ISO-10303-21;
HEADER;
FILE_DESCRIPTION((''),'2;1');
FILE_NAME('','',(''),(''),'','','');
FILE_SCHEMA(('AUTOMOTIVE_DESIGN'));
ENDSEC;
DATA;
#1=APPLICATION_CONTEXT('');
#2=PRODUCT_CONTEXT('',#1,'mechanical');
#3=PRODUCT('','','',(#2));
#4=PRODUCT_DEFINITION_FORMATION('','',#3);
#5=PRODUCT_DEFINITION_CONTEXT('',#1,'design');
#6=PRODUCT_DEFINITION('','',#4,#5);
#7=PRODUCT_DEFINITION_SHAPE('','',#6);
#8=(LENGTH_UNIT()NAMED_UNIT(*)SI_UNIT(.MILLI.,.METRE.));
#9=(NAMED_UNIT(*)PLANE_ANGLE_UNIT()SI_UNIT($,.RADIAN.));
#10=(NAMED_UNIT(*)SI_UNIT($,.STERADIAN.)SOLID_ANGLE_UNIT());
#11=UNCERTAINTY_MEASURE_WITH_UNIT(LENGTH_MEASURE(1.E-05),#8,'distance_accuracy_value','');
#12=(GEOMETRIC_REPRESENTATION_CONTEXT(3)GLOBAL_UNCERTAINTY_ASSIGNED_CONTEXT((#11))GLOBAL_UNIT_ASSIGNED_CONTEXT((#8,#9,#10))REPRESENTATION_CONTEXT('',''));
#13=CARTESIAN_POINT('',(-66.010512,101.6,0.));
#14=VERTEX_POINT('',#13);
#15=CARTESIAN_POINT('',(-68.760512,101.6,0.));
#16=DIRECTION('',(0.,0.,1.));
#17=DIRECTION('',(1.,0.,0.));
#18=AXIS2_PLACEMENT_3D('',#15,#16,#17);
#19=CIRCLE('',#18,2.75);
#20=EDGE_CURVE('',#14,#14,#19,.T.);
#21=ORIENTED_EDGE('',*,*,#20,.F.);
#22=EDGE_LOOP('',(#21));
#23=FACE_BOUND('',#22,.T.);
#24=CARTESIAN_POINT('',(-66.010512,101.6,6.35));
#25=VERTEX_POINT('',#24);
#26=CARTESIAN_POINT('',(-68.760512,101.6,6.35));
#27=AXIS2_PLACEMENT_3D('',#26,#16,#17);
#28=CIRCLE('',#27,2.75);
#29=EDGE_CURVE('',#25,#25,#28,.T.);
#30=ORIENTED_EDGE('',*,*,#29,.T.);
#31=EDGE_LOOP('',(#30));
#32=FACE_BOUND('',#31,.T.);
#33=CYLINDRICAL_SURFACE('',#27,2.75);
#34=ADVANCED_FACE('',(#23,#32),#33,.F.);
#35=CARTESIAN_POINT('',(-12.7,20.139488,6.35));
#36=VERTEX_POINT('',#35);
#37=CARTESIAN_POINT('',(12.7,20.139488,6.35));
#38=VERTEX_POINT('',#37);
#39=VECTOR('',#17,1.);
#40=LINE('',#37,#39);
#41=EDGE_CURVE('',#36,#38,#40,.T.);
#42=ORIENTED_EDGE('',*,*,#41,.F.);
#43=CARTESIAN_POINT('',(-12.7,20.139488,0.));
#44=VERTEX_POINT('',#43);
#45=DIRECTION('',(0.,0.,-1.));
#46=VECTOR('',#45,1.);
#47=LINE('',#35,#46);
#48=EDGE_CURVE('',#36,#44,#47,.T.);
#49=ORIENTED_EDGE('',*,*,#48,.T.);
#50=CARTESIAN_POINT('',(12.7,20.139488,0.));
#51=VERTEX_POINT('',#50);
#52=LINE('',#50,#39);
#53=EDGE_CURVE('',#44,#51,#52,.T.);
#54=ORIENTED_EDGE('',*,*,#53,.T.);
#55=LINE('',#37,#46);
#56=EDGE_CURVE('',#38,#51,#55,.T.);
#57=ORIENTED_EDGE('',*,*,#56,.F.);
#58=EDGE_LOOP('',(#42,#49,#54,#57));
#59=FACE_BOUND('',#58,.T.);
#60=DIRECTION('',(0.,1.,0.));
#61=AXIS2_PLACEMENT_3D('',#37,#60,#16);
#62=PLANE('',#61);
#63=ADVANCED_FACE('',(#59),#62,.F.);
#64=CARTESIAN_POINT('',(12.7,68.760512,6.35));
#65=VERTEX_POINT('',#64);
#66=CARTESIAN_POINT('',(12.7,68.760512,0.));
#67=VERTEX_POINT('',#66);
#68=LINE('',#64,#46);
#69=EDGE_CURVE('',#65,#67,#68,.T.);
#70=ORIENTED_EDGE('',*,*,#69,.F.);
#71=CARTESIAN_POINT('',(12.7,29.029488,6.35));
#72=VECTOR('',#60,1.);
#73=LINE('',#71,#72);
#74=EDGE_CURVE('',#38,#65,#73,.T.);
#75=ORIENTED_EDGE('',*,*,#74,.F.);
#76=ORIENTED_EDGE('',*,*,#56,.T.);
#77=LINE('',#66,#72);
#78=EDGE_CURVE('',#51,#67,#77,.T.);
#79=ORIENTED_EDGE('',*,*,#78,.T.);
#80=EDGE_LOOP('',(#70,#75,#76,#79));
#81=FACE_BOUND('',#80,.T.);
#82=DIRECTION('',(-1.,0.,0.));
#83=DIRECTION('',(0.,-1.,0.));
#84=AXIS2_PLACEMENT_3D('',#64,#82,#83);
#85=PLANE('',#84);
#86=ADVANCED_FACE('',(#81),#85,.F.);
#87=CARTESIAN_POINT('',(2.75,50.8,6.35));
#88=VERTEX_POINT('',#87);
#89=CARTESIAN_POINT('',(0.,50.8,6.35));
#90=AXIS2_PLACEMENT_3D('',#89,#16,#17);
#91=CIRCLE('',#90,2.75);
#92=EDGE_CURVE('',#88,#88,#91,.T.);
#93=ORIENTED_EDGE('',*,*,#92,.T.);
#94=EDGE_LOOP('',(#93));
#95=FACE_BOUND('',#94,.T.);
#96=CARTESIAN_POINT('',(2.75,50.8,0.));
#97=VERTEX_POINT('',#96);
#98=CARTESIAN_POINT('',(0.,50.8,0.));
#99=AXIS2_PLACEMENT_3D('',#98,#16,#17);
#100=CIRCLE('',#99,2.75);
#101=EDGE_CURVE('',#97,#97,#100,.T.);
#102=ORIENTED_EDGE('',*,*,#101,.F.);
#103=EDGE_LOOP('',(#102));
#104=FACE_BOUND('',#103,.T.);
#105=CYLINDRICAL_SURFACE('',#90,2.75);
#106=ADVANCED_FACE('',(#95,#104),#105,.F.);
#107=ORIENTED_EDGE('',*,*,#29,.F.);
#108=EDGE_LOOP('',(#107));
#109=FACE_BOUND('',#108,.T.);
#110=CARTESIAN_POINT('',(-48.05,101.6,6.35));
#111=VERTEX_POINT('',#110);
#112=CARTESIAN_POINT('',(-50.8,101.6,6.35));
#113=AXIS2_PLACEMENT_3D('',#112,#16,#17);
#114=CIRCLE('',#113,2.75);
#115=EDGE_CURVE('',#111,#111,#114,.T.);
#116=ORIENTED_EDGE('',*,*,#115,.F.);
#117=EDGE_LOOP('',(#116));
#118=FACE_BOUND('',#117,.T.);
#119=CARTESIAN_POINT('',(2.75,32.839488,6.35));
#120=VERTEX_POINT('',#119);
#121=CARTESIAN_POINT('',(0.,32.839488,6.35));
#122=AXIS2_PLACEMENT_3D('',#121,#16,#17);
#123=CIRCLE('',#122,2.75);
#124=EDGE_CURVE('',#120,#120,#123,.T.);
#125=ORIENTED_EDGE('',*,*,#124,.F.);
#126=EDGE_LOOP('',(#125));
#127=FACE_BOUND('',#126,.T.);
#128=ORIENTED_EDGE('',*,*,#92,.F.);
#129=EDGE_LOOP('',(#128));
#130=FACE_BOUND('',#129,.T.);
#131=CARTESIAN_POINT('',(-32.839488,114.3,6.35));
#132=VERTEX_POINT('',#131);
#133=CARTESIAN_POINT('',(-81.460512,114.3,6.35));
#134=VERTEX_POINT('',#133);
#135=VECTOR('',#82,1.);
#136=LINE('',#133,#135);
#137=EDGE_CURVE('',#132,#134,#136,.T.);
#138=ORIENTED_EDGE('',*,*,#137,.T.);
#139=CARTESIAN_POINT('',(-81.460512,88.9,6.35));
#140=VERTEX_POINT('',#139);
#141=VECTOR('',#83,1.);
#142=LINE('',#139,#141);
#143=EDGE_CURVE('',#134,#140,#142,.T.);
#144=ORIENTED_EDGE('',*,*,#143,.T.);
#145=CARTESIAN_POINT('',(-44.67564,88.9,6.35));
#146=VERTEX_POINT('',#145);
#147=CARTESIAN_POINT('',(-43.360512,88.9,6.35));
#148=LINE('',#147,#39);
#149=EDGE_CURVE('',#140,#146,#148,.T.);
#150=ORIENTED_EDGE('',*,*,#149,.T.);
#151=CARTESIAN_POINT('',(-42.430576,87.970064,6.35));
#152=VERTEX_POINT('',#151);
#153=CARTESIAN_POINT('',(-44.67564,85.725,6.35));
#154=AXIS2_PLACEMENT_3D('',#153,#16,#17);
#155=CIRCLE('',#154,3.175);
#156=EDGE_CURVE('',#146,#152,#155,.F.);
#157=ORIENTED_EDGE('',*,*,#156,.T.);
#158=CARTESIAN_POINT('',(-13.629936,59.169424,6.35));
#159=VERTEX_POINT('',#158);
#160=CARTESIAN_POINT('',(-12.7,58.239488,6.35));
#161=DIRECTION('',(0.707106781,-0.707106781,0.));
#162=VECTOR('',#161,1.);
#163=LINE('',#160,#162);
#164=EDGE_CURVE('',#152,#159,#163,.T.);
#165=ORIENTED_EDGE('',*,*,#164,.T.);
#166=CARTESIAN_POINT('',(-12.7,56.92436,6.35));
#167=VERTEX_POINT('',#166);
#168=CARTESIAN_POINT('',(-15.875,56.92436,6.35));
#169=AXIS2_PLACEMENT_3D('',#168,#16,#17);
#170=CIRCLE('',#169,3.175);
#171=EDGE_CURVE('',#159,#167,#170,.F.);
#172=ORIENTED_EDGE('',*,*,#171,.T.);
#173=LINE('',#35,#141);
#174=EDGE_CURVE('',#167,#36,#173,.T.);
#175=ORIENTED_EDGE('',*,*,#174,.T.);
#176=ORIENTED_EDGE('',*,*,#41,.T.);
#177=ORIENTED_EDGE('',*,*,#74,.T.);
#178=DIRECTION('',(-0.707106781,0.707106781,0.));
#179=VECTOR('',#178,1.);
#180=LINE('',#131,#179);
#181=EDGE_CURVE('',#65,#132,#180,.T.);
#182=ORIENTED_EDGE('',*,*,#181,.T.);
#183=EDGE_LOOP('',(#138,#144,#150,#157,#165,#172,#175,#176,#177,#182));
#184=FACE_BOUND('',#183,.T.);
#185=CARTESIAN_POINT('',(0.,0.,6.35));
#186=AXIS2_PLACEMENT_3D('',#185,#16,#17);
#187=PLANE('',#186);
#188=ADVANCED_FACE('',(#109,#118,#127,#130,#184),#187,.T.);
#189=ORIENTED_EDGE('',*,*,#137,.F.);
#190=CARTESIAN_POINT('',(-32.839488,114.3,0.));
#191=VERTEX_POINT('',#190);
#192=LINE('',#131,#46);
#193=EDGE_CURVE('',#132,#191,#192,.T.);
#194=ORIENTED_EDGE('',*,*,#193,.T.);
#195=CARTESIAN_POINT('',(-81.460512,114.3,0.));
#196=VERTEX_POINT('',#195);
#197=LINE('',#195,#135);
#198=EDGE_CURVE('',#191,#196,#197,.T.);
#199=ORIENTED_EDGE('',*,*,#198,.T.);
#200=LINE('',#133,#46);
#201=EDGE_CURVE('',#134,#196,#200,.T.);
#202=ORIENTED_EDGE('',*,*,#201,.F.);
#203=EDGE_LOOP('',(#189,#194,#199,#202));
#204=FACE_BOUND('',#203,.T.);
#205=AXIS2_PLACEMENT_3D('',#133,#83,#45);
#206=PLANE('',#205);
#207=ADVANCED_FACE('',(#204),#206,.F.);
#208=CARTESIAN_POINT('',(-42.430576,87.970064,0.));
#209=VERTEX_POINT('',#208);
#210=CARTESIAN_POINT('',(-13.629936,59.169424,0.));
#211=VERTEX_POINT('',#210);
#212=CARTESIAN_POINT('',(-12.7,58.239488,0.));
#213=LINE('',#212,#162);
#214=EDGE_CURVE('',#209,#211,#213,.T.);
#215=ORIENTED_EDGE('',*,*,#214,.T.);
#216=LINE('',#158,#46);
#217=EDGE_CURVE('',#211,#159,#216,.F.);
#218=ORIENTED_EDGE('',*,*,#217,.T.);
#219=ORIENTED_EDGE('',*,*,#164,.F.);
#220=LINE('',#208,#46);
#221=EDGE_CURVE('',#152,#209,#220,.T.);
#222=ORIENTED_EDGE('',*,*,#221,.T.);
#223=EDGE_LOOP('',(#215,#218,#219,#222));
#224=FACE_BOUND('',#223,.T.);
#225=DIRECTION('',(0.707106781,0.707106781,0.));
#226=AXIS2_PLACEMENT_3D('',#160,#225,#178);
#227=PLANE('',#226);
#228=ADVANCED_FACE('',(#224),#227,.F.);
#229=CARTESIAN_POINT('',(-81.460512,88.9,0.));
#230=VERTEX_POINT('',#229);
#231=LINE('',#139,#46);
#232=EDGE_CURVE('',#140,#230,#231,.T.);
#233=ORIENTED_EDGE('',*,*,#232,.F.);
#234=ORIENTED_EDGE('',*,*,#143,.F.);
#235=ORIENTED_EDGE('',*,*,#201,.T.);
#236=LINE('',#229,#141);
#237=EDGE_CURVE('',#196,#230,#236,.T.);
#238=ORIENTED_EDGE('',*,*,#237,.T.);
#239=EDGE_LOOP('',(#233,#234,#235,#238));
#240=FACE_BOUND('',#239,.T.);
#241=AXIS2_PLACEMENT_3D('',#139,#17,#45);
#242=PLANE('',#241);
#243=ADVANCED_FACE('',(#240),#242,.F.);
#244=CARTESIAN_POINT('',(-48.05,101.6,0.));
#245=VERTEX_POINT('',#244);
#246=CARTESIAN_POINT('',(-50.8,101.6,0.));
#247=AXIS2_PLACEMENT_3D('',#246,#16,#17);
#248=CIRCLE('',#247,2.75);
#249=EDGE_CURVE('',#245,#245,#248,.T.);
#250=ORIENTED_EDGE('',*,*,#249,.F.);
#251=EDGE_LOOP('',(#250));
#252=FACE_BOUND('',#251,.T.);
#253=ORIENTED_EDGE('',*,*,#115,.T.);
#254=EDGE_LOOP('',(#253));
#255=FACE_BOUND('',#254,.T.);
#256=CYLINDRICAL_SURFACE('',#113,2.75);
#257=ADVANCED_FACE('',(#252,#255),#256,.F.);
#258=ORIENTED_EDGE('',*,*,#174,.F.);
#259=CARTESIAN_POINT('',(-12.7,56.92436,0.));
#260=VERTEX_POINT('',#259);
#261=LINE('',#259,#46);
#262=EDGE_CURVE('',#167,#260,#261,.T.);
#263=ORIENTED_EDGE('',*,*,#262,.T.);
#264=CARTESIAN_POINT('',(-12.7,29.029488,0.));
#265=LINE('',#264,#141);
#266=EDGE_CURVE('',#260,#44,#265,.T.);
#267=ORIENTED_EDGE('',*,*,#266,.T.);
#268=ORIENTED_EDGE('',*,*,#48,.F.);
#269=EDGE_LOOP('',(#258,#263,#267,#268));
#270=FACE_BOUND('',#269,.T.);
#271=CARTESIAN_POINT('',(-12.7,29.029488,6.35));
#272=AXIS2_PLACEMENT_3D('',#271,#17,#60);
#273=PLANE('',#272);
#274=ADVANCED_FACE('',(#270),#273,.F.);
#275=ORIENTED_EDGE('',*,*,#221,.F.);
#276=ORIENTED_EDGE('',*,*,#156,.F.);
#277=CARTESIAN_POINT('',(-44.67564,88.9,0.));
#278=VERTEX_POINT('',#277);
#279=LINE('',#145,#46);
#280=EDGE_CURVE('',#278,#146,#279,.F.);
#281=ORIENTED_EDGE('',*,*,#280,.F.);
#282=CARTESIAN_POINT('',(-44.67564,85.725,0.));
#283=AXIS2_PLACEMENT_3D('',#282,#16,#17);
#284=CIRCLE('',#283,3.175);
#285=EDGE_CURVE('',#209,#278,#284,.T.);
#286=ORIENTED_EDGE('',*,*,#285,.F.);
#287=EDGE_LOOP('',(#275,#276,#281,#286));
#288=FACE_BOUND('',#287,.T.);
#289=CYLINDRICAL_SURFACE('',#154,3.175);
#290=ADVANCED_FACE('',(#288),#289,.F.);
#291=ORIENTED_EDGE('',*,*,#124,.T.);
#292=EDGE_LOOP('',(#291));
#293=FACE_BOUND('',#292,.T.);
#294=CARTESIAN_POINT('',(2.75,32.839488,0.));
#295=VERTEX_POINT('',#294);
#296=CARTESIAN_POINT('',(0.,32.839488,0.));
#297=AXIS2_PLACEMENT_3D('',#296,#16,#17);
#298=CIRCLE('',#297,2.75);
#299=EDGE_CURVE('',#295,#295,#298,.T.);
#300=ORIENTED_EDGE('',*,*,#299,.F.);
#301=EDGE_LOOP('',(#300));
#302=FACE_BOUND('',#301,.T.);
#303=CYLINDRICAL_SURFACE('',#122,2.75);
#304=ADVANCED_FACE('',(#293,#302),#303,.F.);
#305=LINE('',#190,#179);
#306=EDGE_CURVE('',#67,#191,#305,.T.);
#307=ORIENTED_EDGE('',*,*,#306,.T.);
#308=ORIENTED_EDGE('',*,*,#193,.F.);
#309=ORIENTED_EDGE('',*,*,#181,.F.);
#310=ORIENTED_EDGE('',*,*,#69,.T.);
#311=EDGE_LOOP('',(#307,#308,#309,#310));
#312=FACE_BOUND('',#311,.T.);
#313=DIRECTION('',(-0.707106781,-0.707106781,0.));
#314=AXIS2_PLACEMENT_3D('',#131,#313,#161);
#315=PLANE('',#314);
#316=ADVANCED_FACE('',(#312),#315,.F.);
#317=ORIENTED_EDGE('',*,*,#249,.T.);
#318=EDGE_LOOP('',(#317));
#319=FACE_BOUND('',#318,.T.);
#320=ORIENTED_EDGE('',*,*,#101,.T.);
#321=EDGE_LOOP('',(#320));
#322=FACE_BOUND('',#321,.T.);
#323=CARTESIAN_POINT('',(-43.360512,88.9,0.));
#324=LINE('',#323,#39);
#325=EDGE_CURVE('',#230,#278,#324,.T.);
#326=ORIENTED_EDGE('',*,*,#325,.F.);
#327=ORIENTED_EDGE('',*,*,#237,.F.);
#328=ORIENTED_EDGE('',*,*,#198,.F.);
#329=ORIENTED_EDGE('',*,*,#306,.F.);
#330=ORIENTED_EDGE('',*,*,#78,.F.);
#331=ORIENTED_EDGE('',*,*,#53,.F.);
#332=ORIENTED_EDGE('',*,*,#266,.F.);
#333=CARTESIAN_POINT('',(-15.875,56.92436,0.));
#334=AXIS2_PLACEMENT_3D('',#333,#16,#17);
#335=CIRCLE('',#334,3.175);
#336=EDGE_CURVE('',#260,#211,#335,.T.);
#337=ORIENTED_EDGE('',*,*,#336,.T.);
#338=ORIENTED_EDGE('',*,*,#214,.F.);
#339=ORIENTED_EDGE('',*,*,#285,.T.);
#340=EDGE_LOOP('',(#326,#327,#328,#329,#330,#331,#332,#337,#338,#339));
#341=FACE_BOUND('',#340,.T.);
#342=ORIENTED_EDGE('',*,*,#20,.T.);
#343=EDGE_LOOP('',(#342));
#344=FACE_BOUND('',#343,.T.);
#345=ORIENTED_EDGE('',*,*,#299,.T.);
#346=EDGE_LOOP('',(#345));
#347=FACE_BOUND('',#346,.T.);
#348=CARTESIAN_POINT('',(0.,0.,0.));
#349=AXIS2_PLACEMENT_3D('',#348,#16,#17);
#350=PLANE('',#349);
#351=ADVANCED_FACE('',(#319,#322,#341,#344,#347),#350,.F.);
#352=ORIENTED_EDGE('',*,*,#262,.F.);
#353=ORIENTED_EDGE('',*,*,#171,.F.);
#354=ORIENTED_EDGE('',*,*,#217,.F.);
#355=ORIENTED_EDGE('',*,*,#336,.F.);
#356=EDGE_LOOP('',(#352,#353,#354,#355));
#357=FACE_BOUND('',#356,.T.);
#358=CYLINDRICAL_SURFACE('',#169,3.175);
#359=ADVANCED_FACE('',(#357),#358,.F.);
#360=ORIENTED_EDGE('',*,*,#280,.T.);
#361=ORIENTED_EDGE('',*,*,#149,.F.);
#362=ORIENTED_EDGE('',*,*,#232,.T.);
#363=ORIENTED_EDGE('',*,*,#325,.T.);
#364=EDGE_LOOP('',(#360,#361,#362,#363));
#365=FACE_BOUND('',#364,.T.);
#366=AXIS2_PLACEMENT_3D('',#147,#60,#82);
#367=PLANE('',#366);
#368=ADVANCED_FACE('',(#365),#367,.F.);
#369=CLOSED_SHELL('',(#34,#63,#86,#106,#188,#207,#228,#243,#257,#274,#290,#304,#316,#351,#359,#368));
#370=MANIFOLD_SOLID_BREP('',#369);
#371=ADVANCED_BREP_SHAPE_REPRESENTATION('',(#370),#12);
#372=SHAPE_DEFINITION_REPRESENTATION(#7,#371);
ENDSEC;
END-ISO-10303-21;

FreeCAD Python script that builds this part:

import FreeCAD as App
import Part
import Sketcher
Q = App.Units.Quantity


def edges_at(feature, points):
    """Names of the edges that pass closest to the given points."""
    edges = feature.Shape.Edges
    near = lambda p: min(range(len(edges)), key=lambda i: edges[i].distToShape(Part.Vertex(*p))[0])
    return sorted({f"Edge{near(p) + 1}" for p in points})


def add_polygon(sketch, points):
    """Adds a closed chain of lines whose ends are joined by coincident constraints."""
    first, n = sketch.GeometryCount, len(points)
    for a, b in zip(points, points[1:] + points[:1]):
        sketch.addGeometry(Part.LineSegment(App.Vector(*a, 0), App.Vector(*b, 0)), False)
    for i in range(n):
        sketch.addConstraint(Sketcher.Constraint("Coincident", first + i, 2, first + (i + 1) % n, 1))

doc = App.newDocument("Part")
body = doc.addObject("PartDesign::Body", "Body")

# Sketch on XY plane
sketch1 = body.newObject("Sketcher::SketchObject", "Sketch")
sketch1.AttachmentSupport = (doc.getObject("XY_Plane"), [""])
sketch1.MapMode = "FlatFace"
add_polygon(sketch1, [(-13, 58), (-13, 20), (13, 20), (13, 69), (-33, 114), (-81, 114), (-81, 89), (-43, 89)])  # lines 0-7
sketch1.addConstraint(Sketcher.Constraint("Vertical", 0))
sketch1.addConstraint(Sketcher.Constraint("Horizontal", 1))
sketch1.addConstraint(Sketcher.Constraint("Vertical", 2))
sketch1.addConstraint(Sketcher.Constraint("Horizontal", 4))
sketch1.addConstraint(Sketcher.Constraint("Vertical", 5))
sketch1.addConstraint(Sketcher.Constraint("Horizontal", 6))
sketch1.addConstraint(Sketcher.Constraint("Parallel", 3, 7))
sketch1.addConstraint(Sketcher.Constraint("Equal", 6, 0))
sketch1.addConstraint(Sketcher.Constraint("Equal", 4, 2))
sketch1.addConstraint(Sketcher.Constraint("Equal", 1, 5))
sketch1.addConstraint(Sketcher.Constraint("DistanceX", 1, 1, 1, 2, Q("1 in")))
sketch1.addConstraint(Sketcher.Constraint("DistanceX", 6, 1, 6, 2, Q("1.5 in")))
sketch1.addConstraint(Sketcher.Constraint("DistanceX", 0, 2, -1, 1, Q("0.5 in")))
sketch1.addConstraint(Sketcher.Constraint("DistanceY", -1, 1, 3, 2, Q("4.5 in")))
sketch1.addConstraint(Sketcher.Constraint("Distance", 3, Q("64.402561 mm")))
sketch1.addConstraint(Sketcher.Constraint("DistanceX", 4, 2, 4, 1, Q("48.621024 mm")))
pad1 = body.newObject("PartDesign::Pad", "Pad")
pad1.Profile = sketch1
pad1.Length = Q("0.25 in")
doc.recompute()

fillet = body.newObject("PartDesign::Fillet", "Fillet")
fillet.Base = (pad1, edges_at(pad1, [(-12.7, 58.239, 3.175), (-43.361, 88.9, 3.175)]))
fillet.Radius = Q("0.125 in")

# Sketch on XY plane
sketch2 = body.newObject("Sketcher::SketchObject", "Sketch001")
sketch2.AttachmentSupport = (doc.getObject("XY_Plane"), [""])
sketch2.MapMode = "FlatFace"
sketch2.AttachmentOffset = App.Placement(App.Vector(0, 0, 0.25 * 25.4), App.Rotation())
sketch2.addGeometry(Part.Circle(App.Vector(0, 50.8, 0), App.Vector(0, 0, 1), 2.8), False)
sketch2.addGeometry(Part.Circle(App.Vector(-50.8, 101.6, 0), App.Vector(0, 0, 1), 2.8), False)
sketch2.addGeometry(Part.Circle(App.Vector(-68.8, 101.6, 0), App.Vector(0, 0, 1), 2.8), False)
sketch2.addGeometry(Part.Circle(App.Vector(0, 32.8, 0), App.Vector(0, 0, 1), 2.8), False)
sketch2.addConstraint(Sketcher.Constraint("Equal", 0, 1))
sketch2.addConstraint(Sketcher.Constraint("Equal", 1, 2))
sketch2.addConstraint(Sketcher.Constraint("Equal", 2, 3))
sketch2.addConstraint(Sketcher.Constraint("PointOnObject", 0, 3, -2))
sketch2.addConstraint(Sketcher.Constraint("PointOnObject", 3, 3, -2))
sketch2.addConstraint(Sketcher.Constraint("Horizontal", 1, 3, 2, 3))
sketch2.addConstraint(Sketcher.Constraint("DistanceY", -1, 1, 0, 3, Q("2 in")))
sketch2.addConstraint(Sketcher.Constraint("DistanceX", 1, 3, -1, 1, Q("2 in")))
sketch2.addConstraint(Sketcher.Constraint("DistanceY", -1, 1, 1, 3, Q("4 in")))
sketch2.addConstraint(Sketcher.Constraint("Diameter", 0, Q("5.5 mm")))
sketch2.addConstraint(Sketcher.Constraint("DistanceX", 2, 3, -1, 1, Q("68.760512 mm")))
sketch2.addConstraint(Sketcher.Constraint("DistanceY", -1, 1, 3, 3, Q("32.839488 mm")))
doc.recompute()
hole = body.newObject("PartDesign::Hole", "Hole")
hole.Profile = sketch2
hole.ThreadType = "None"
hole.Diameter = 5.5
hole.DepthType = "Dimension"
hole.Depth = 18.75
hole.DrillPoint = "Angled"
hole.DrillPointAngle = 118

doc.recompute()
